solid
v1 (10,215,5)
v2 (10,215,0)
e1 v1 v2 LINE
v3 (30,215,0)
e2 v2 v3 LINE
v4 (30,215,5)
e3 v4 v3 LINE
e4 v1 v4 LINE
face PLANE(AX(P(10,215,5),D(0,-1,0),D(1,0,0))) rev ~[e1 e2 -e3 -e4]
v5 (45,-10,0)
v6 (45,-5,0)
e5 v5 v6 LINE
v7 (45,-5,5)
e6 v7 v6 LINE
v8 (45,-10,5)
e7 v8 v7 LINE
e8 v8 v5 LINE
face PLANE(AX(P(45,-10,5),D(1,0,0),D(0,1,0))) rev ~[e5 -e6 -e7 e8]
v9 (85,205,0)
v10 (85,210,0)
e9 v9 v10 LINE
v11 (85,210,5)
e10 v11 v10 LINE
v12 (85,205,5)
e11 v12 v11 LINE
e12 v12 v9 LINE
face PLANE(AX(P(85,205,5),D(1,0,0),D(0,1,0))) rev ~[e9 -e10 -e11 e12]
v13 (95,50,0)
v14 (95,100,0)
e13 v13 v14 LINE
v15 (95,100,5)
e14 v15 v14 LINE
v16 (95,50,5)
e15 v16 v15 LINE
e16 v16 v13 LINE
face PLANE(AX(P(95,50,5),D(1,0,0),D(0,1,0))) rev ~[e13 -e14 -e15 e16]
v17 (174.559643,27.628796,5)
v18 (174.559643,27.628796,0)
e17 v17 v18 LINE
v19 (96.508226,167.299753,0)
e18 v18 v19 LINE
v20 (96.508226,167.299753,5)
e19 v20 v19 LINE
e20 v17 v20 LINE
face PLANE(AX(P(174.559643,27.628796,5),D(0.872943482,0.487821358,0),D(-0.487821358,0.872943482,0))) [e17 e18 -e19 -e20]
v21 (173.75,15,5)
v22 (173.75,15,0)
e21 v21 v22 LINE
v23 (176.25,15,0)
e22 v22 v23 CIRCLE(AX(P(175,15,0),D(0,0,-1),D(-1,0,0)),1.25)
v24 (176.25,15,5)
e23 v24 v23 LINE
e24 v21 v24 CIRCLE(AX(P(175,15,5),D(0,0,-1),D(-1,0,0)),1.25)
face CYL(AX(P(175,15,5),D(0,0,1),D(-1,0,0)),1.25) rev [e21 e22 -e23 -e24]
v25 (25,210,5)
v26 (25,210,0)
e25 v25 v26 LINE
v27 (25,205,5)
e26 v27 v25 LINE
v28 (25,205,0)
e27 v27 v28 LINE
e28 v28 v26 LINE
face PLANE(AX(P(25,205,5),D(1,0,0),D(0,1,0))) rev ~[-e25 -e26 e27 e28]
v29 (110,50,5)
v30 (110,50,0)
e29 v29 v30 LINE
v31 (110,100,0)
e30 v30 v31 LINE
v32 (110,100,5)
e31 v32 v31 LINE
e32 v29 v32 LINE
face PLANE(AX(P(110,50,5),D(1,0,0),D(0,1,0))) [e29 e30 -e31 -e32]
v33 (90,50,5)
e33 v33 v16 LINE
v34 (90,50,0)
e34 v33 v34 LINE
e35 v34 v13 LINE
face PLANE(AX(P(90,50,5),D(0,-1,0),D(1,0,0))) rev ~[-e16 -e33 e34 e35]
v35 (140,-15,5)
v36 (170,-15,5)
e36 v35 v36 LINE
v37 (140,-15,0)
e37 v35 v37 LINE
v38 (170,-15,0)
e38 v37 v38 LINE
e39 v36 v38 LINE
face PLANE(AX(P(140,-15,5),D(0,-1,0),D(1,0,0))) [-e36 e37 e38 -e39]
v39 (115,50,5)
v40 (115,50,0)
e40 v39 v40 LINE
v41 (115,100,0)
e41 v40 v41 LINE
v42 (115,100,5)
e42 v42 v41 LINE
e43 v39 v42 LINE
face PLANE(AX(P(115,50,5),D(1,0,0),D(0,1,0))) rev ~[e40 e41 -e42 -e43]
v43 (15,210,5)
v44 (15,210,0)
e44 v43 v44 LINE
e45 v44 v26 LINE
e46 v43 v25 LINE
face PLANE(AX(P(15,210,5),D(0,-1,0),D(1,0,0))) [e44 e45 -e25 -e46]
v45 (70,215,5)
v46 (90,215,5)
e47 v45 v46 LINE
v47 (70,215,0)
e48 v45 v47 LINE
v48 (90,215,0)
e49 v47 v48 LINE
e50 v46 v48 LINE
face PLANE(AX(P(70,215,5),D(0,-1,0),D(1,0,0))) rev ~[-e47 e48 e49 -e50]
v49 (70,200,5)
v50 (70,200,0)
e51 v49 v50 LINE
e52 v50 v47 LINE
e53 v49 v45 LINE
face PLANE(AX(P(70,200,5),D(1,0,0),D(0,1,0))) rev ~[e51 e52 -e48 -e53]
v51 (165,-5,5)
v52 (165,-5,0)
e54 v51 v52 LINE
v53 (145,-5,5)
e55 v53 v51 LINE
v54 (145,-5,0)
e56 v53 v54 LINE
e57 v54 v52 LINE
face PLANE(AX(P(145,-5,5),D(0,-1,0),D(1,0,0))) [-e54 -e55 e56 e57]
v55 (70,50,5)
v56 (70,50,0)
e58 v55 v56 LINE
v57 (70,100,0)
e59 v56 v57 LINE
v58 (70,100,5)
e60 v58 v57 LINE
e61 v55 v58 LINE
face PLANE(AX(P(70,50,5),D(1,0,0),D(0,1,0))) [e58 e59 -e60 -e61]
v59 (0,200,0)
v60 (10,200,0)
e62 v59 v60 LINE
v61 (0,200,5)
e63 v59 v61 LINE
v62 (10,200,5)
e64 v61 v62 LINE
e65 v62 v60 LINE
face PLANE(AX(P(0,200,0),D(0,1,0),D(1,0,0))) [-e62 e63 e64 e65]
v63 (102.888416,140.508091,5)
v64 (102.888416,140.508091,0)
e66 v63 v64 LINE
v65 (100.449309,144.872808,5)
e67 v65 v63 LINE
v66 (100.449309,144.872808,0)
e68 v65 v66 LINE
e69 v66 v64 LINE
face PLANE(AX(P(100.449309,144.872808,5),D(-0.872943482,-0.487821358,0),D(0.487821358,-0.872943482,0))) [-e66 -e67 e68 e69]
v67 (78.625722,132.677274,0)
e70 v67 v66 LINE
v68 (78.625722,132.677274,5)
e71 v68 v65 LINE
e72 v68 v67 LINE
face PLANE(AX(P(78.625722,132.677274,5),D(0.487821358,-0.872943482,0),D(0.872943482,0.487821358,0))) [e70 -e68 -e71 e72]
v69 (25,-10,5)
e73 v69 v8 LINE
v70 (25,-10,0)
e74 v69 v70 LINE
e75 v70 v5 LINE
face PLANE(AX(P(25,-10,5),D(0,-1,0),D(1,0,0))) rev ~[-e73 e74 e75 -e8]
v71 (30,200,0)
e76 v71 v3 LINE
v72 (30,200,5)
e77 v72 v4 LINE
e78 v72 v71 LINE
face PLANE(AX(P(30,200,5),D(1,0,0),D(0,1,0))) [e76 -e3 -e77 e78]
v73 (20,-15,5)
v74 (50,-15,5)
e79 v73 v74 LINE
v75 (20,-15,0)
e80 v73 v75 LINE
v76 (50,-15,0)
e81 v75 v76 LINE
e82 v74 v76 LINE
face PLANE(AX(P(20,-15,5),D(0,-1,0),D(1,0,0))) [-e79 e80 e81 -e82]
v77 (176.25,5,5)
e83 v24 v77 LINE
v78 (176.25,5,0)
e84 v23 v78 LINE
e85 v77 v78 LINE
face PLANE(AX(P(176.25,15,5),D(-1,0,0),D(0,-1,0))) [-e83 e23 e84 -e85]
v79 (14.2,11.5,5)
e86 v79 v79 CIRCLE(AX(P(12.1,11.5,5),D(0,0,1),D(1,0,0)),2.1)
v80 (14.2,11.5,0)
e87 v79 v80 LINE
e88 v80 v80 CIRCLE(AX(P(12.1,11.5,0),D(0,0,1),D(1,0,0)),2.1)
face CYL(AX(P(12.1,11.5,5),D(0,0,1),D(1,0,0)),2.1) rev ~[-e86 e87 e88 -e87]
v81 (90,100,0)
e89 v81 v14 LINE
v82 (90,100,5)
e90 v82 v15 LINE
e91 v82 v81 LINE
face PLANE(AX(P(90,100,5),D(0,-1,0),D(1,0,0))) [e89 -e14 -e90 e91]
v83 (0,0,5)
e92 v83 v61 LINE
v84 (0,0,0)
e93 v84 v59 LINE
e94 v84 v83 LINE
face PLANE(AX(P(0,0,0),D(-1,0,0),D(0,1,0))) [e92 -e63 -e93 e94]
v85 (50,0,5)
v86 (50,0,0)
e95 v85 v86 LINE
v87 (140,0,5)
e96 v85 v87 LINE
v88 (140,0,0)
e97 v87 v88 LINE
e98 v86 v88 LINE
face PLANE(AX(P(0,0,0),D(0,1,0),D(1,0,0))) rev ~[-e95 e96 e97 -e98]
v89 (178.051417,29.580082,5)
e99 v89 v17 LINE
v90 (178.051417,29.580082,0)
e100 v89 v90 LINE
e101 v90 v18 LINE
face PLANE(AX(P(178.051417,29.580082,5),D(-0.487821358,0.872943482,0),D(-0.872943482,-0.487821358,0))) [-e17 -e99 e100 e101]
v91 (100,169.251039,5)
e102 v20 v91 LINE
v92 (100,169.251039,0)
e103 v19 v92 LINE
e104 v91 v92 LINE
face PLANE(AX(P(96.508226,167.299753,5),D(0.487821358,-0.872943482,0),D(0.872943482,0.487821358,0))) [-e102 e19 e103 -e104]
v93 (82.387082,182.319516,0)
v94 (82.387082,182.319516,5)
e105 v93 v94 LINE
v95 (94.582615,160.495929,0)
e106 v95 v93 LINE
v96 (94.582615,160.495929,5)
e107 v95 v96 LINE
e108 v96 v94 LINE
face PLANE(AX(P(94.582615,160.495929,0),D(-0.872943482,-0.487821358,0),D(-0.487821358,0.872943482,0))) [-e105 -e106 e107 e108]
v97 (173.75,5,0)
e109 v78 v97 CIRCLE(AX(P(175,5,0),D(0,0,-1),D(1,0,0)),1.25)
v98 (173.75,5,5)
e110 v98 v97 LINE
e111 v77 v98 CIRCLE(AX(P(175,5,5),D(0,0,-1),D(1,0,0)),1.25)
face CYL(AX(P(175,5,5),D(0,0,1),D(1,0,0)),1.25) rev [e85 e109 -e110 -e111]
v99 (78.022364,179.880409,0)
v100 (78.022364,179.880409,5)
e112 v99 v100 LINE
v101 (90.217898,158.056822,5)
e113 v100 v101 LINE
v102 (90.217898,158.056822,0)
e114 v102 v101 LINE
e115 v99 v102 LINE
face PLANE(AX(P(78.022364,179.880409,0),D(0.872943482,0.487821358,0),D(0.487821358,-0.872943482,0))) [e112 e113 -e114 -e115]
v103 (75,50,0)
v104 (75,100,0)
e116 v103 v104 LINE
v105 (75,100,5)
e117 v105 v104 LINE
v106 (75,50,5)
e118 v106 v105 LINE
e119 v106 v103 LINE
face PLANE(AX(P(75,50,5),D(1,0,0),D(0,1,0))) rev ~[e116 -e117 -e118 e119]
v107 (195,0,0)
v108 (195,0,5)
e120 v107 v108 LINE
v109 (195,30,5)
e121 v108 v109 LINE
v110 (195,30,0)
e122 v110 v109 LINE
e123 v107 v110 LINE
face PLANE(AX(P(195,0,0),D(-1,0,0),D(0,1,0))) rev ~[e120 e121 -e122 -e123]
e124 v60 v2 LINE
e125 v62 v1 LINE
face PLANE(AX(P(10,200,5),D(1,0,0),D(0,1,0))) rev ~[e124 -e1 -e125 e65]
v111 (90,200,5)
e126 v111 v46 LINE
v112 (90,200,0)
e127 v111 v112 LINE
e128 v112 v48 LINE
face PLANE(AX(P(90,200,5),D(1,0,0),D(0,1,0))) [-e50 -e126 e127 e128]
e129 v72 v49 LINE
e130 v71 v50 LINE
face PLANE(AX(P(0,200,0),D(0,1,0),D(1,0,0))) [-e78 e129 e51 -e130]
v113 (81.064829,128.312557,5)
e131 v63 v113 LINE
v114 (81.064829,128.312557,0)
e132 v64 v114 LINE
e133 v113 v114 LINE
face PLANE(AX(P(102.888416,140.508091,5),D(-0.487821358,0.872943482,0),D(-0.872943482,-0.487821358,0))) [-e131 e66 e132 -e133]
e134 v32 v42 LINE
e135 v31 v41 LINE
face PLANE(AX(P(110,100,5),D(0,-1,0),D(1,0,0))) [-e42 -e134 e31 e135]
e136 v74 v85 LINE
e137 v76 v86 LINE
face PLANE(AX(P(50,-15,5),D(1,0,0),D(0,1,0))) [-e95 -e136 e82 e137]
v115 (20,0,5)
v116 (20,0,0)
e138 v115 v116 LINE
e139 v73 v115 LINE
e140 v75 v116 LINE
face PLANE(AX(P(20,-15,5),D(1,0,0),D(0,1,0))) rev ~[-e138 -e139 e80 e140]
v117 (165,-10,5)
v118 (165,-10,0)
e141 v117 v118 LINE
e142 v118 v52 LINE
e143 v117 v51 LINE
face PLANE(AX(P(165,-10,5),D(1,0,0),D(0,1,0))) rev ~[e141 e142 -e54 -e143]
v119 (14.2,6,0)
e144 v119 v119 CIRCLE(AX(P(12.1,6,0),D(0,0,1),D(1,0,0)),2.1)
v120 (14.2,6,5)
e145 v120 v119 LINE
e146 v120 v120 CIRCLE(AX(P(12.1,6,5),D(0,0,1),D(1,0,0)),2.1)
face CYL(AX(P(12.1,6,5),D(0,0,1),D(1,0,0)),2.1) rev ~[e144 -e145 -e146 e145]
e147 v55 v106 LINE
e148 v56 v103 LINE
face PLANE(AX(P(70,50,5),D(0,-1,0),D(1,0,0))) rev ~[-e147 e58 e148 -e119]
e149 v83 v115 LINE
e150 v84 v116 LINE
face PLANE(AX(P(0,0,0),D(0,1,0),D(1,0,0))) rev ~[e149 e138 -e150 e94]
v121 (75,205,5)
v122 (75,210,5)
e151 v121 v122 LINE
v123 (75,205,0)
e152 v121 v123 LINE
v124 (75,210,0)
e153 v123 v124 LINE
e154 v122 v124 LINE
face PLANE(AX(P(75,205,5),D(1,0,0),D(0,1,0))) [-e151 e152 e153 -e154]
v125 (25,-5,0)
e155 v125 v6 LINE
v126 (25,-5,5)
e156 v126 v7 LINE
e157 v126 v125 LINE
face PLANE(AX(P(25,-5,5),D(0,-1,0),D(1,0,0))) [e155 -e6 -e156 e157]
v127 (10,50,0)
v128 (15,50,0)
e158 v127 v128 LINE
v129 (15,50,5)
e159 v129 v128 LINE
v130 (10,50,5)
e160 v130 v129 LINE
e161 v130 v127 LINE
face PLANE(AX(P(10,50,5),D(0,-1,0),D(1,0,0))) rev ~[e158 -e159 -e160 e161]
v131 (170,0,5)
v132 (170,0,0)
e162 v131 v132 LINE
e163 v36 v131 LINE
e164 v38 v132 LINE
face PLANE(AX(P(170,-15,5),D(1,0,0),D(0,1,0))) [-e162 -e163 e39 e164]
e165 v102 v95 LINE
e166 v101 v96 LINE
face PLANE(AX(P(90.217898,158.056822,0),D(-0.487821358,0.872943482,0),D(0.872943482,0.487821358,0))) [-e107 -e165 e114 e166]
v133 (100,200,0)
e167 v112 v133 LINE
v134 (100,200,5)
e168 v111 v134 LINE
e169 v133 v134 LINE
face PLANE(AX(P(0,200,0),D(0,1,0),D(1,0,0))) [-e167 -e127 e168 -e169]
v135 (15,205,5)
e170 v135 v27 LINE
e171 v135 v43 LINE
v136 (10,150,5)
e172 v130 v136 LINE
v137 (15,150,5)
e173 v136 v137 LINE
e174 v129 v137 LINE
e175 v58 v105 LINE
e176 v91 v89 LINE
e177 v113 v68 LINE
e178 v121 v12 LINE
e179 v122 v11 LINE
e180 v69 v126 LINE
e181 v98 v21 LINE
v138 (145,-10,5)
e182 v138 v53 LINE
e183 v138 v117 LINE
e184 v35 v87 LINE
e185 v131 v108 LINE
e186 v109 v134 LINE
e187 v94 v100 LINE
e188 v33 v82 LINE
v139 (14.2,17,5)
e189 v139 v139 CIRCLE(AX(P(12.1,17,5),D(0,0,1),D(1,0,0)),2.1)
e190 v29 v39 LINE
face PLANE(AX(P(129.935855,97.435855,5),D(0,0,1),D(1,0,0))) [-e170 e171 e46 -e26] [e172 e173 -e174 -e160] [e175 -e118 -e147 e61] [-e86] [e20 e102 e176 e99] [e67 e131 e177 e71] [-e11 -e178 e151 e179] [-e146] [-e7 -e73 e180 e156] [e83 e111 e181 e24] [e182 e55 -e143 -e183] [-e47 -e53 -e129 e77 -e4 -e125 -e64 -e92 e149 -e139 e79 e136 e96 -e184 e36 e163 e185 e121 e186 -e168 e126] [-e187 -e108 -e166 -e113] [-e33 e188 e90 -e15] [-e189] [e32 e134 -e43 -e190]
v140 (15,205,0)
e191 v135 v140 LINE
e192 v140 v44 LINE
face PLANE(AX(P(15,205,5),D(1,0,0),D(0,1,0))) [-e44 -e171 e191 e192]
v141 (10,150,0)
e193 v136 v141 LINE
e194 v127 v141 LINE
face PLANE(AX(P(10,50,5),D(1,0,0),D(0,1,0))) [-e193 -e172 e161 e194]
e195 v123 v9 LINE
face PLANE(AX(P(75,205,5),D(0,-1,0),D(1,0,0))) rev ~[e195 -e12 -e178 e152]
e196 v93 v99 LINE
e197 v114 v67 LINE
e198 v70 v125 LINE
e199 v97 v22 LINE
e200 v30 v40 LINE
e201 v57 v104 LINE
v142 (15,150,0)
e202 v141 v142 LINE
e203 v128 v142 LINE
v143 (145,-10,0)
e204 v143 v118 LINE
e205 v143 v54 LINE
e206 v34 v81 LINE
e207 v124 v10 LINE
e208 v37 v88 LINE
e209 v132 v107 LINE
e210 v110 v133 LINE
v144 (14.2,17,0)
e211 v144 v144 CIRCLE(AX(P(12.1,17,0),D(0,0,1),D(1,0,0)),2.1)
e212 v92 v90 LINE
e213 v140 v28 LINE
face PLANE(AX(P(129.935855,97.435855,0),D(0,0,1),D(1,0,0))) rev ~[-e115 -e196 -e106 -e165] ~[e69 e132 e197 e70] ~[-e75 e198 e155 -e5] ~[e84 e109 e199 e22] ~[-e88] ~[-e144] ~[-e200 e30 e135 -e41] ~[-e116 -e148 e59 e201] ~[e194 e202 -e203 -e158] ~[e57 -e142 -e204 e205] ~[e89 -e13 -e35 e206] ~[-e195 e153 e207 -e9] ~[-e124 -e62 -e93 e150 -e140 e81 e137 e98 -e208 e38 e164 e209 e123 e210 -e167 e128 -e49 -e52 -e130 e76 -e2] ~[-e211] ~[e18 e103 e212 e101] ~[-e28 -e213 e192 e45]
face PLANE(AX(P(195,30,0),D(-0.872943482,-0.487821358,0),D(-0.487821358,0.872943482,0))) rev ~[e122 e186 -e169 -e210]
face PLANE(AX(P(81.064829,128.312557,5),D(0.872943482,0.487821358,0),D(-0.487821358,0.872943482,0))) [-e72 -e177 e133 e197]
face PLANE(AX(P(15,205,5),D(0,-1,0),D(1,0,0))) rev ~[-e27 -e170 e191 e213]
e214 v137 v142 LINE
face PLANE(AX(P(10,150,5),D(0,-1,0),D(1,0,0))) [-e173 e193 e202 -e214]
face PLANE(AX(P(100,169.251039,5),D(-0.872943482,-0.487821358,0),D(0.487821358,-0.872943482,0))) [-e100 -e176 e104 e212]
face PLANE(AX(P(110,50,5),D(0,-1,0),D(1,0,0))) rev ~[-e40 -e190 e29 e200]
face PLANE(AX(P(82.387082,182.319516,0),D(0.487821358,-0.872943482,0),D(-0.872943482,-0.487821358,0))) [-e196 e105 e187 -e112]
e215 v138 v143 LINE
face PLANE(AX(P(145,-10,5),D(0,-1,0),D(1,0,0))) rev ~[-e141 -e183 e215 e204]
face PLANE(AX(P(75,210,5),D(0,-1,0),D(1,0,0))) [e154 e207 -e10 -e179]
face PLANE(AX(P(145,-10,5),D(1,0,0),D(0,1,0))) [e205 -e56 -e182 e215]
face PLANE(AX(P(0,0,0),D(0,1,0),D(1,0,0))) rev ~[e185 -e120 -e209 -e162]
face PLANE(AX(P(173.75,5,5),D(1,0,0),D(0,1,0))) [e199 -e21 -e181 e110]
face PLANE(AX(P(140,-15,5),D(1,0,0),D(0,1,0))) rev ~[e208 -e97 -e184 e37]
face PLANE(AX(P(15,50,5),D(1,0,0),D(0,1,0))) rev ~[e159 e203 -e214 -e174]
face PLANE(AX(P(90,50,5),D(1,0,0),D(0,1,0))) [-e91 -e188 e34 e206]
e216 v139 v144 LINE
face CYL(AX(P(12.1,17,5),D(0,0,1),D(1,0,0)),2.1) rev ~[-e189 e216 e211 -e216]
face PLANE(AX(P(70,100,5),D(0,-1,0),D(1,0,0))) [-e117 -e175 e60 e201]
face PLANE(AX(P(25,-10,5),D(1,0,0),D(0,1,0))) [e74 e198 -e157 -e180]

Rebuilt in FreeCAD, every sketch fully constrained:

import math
import FreeCAD as App
import Part
import Sketcher

V = App.Vector
Q = App.Units.Quantity

doc = App.newDocument("Part")
params = doc.addObject("Spreadsheet::Sheet", "Params")
for row, (alias, value) in enumerate([
    ("sketch1_width", "100 mm"),
    ("sketch1_width2", "195 mm"),
    ("sketch1_height", "200 mm"),
    ("sketch1_height2", "30 mm"),
    ("pad1_length", "5 mm"),
    ("sketch2_diameter", "4.2 mm"),
    ("pocket1_length", "5 mm"),
    ("sketch3_width", "20 mm"),
    ("sketch3_width2", "10 mm"),
    ("sketch3_height", "15 mm"),
    ("sketch3_height2", "5 mm"),
    ("pad2_length", "5 mm"),
    ("sketch4_diameter", "4.2 mm"),
    ("pocket2_length", "5 mm"),
    ("sketch5_width", "30 mm"),
    ("sketch5_width2", "20 mm"),
    ("sketch5_height", "15 mm"),
    ("sketch5_height2", "5 mm"),
    ("pad3_length", "5 mm"),
    ("sketch6_length", "160 mm"),
    ("sketch6_length2", "4 mm"),
    ("pocket3_length", "5 mm"),
    ("sketch7_width", "5 mm"),
    ("sketch7_height", "50 mm"),
    ("pocket4_length", "5 mm"),
    ("sketch8_height", "10 mm"),
    ("sketch8_radius", "1.25 mm"),
    ("pocket5_length", "5 mm"),
    ("sketch9_width", "5 mm"),
    ("sketch9_height", "100 mm"),
    ("sketch9_length", "25 mm"),
    ("sketch9_length2", "5 mm"),
    ("pocket6_length", "5 mm"),
    ("sketch10_length", "25 mm"),
    ("sketch10_length2", "5 mm"),
    ("pocket7_length", "5 mm"),
], start=1):
    params.set(f"A{row}", alias)
    params.set(f"B{row}", "=" + value)
    params.setAlias(f"B{row}", alias)

body = doc.addObject("PartDesign::Body", "Body")

# Sketch on XY plane
sketch1 = doc.addObject("Sketcher::SketchObject", "Sketch")
body.addObject(sketch1)
sketch1.AttachmentSupport = (doc.XY_Plane, [""])
sketch1.MapMode = "FlatFace"
sketch1.addGeometry(Part.LineSegment(V(195, 30, 0), V(100, 200, 0)), False)
sketch1.addGeometry(Part.LineSegment(V(100, 200, 0), V(0, 200, 0)), False)
sketch1.addGeometry(Part.LineSegment(V(0, 200, 0), V(0, 0, 0)), False)
sketch1.addGeometry(Part.LineSegment(V(0, 0, 0), V(195, 0, 0)), False)
sketch1.addGeometry(Part.LineSegment(V(195, 0, 0), V(195, 30, 0)), False)
sketch1.addConstraint(Sketcher.Constraint("Coincident", 0, 2, 1, 1))
sketch1.addConstraint(Sketcher.Constraint("Coincident", 1, 2, 2, 1))
sketch1.addConstraint(Sketcher.Constraint("Coincident", 2, 2, 3, 1))
sketch1.addConstraint(Sketcher.Constraint("Coincident", 3, 2, 4, 1))
sketch1.addConstraint(Sketcher.Constraint("Coincident", 4, 2, 0, 1))
sketch1.addConstraint(Sketcher.Constraint("Horizontal", 1))
sketch1.addConstraint(Sketcher.Constraint("Vertical", 2))
sketch1.addConstraint(Sketcher.Constraint("Horizontal", 3))
sketch1.addConstraint(Sketcher.Constraint("Vertical", 4))
sketch1.addConstraint(Sketcher.Constraint("Coincident", 2, 2, -1, 1))
sketch1.addConstraint(Sketcher.Constraint("DistanceX", 1, 2, 1, 1, Q("100 mm")))
sketch1.addConstraint(Sketcher.Constraint("DistanceX", 3, 1, 3, 2, Q("195 mm")))
sketch1.addConstraint(Sketcher.Constraint("DistanceY", 2, 2, 2, 1, Q("200 mm")))
sketch1.addConstraint(Sketcher.Constraint("DistanceY", 4, 1, 4, 2, Q("30 mm")))
sketch1.setExpression("Constraints[10]", "Params.sketch1_width")
sketch1.setExpression("Constraints[11]", "Params.sketch1_width2")
sketch1.setExpression("Constraints[12]", "Params.sketch1_height")
sketch1.setExpression("Constraints[13]", "Params.sketch1_height2")
pad1 = doc.addObject("PartDesign::Pad", "Pad")
body.addObject(pad1)
pad1.Profile = sketch1
pad1.setExpression("Length", "Params.pad1_length")

# Sketch on XY plane
sketch2 = doc.addObject("Sketcher::SketchObject", "Sketch001")
body.addObject(sketch2)
sketch2.AttachmentSupport = (doc.XY_Plane, [""])
sketch2.MapMode = "FlatFace"
sketch2.AttachmentOffset = App.Placement(V(0, 0, 5), App.Rotation())
sketch2.addGeometry(Part.Circle(V(12.1, 6, 0), V(0, 0, 1), 2.1), False)
sketch2.addConstraint(Sketcher.Constraint("Diameter", 0, Q("4.2 mm")))
sketch2.addConstraint(Sketcher.Constraint("DistanceY", -1, 1, 0, 3, Q("6 mm")))
sketch2.addConstraint(Sketcher.Constraint("DistanceX", -1, 1, 0, 3, Q("12.1 mm")))
sketch2.setExpression("Constraints[0]", "Params.sketch2_diameter")
pocket1 = doc.addObject("PartDesign::Pocket", "Pocket")
body.addObject(pocket1)
pocket1.Profile = sketch2
pocket1.setExpression("Length", "Params.pocket1_length")

# Sketch on XY plane
sketch3 = doc.addObject("Sketcher::SketchObject", "Sketch002")
body.addObject(sketch3)
sketch3.AttachmentSupport = (doc.XY_Plane, [""])
sketch3.MapMode = "FlatFace"
sketch3.AttachmentOffset = App.Placement(V(0, 0, 5), App.Rotation())
sketch3.addGeometry(Part.LineSegment(V(10, 215, 0), V(10, 200, 0)), False)
sketch3.addGeometry(Part.LineSegment(V(10, 200, 0), V(30, 200, 0)), False)
sketch3.addGeometry(Part.LineSegment(V(30, 200, 0), V(30, 215, 0)), False)
sketch3.addGeometry(Part.LineSegment(V(30, 215, 0), V(10, 215, 0)), False)
sketch3.addGeometry(Part.LineSegment(V(25, 205, 0), V(15, 205, 0)), False)
sketch3.addGeometry(Part.LineSegment(V(15, 205, 0), V(15, 210, 0)), False)
sketch3.addGeometry(Part.LineSegment(V(15, 210, 0), V(25, 210, 0)), False)
sketch3.addGeometry(Part.LineSegment(V(25, 210, 0), V(25, 205, 0)), False)
sketch3.addGeometry(Part.LineSegment(V(70, 215, 0), V(70, 200, 0)), False)
sketch3.addGeometry(Part.LineSegment(V(70, 200, 0), V(90, 200, 0)), False)
sketch3.addGeometry(Part.LineSegment(V(90, 200, 0), V(90, 215, 0)), False)
sketch3.addGeometry(Part.LineSegment(V(90, 215, 0), V(70, 215, 0)), False)
sketch3.addGeometry(Part.LineSegment(V(85, 205, 0), V(75, 205, 0)), False)
sketch3.addGeometry(Part.LineSegment(V(75, 205, 0), V(75, 210, 0)), False)
sketch3.addGeometry(Part.LineSegment(V(75, 210, 0), V(85, 210, 0)), False)
sketch3.addGeometry(Part.LineSegment(V(85, 210, 0), V(85, 205, 0)), False)
sketch3.addConstraint(Sketcher.Constraint("Coincident", 0, 2, 1, 1))
sketch3.addConstraint(Sketcher.Constraint("Coincident", 1, 2, 2, 1))
sketch3.addConstraint(Sketcher.Constraint("Coincident", 2, 2, 3, 1))
sketch3.addConstraint(Sketcher.Constraint("Coincident", 3, 2, 0, 1))
sketch3.addConstraint(Sketcher.Constraint("Coincident", 4, 2, 5, 1))
sketch3.addConstraint(Sketcher.Constraint("Coincident", 5, 2, 6, 1))
sketch3.addConstraint(Sketcher.Constraint("Coincident", 6, 2, 7, 1))
sketch3.addConstraint(Sketcher.Constraint("Coincident", 7, 2, 4, 1))
sketch3.addConstraint(Sketcher.Constraint("Coincident", 8, 2, 9, 1))
sketch3.addConstraint(Sketcher.Constraint("Coincident", 9, 2, 10, 1))
sketch3.addConstraint(Sketcher.Constraint("Coincident", 10, 2, 11, 1))
sketch3.addConstraint(Sketcher.Constraint("Coincident", 11, 2, 8, 1))
sketch3.addConstraint(Sketcher.Constraint("Coincident", 12, 2, 13, 1))
sketch3.addConstraint(Sketcher.Constraint("Coincident", 13, 2, 14, 1))
sketch3.addConstraint(Sketcher.Constraint("Coincident", 14, 2, 15, 1))
sketch3.addConstraint(Sketcher.Constraint("Coincident", 15, 2, 12, 1))
sketch3.addConstraint(Sketcher.Constraint("Vertical", 0))
sketch3.addConstraint(Sketcher.Constraint("Horizontal", 1))
sketch3.addConstraint(Sketcher.Constraint("Vertical", 2))
sketch3.addConstraint(Sketcher.Constraint("Horizontal", 3))
sketch3.addConstraint(Sketcher.Constraint("Horizontal", 4))
sketch3.addConstraint(Sketcher.Constraint("Vertical", 5))
sketch3.addConstraint(Sketcher.Constraint("Horizontal", 6))
sketch3.addConstraint(Sketcher.Constraint("Vertical", 7))
sketch3.addConstraint(Sketcher.Constraint("Vertical", 8))
sketch3.addConstraint(Sketcher.Constraint("Horizontal", 9))
sketch3.addConstraint(Sketcher.Constraint("Vertical", 10))
sketch3.addConstraint(Sketcher.Constraint("Horizontal", 11))
sketch3.addConstraint(Sketcher.Constraint("Horizontal", 12))
sketch3.addConstraint(Sketcher.Constraint("Vertical", 13))
sketch3.addConstraint(Sketcher.Constraint("Horizontal", 14))
sketch3.addConstraint(Sketcher.Constraint("Vertical", 15))
sketch3.addConstraint(Sketcher.Constraint("Horizontal", 1, 2, 8, 2))
sketch3.addConstraint(Sketcher.Constraint("Horizontal", 3, 2, 10, 2))
sketch3.addConstraint(Sketcher.Constraint("Horizontal", 7, 2, 12, 2))
sketch3.addConstraint(Sketcher.Constraint("Horizontal", 6, 2, 13, 2))
sketch3.addConstraint(Sketcher.Constraint("Equal", 3, 9))
sketch3.addConstraint(Sketcher.Constraint("Equal", 6, 12))
sketch3.addConstraint(Sketcher.Constraint("DistanceX", 1, 1, 1, 2, Q("20 mm")))
sketch3.addConstraint(Sketcher.Constraint("DistanceX", 4, 2, 4, 1, Q("10 mm")))
sketch3.addConstraint(Sketcher.Constraint("DistanceY", 0, 2, 0, 1, Q("15 mm")))
sketch3.addConstraint(Sketcher.Constraint("DistanceY", 5, 1, 5, 2, Q("5 mm")))
sketch3.addConstraint(Sketcher.Constraint("DistanceX", -1, 1, 0, 2, Q("10 mm")))
sketch3.addConstraint(Sketcher.Constraint("DistanceY", -1, 1, 0, 2, Q("200 mm")))
sketch3.addConstraint(Sketcher.Constraint("DistanceX", -1, 1, 4, 2, Q("15 mm")))
sketch3.addConstraint(Sketcher.Constraint("DistanceY", -1, 1, 4, 2, Q("205 mm")))
sketch3.addConstraint(Sketcher.Constraint("DistanceX", -1, 1, 8, 2, Q("70 mm")))
sketch3.addConstraint(Sketcher.Constraint("DistanceX", -1, 1, 12, 2, Q("75 mm")))
sketch3.setExpression("Constraints[38]", "Params.sketch3_width")
sketch3.setExpression("Constraints[39]", "Params.sketch3_width2")
sketch3.setExpression("Constraints[40]", "Params.sketch3_height")
sketch3.setExpression("Constraints[41]", "Params.sketch3_height2")
pad2 = doc.addObject("PartDesign::Pad", "Pad001")
body.addObject(pad2)
pad2.Profile = sketch3
pad2.setExpression("Length", "Params.pad2_length")
pad2.Reversed = True

# Sketch on XY plane
sketch4 = doc.addObject("Sketcher::SketchObject", "Sketch003")
body.addObject(sketch4)
sketch4.AttachmentSupport = (doc.XY_Plane, [""])
sketch4.MapMode = "FlatFace"
sketch4.AttachmentOffset = App.Placement(V(0, 0, 5), App.Rotation())
sketch4.addGeometry(Part.Circle(V(12.1, 11.5, 0), V(0, 0, 1), 2.1), False)
sketch4.addGeometry(Part.Circle(V(12.1, 17, 0), V(0, 0, 1), 2.1), False)
sketch4.addConstraint(Sketcher.Constraint("Equal", 0, 1))
sketch4.addConstraint(Sketcher.Constraint("Vertical", 0, 3, 1, 3))
sketch4.addConstraint(Sketcher.Constraint("Diameter", 0, Q("4.2 mm")))
sketch4.addConstraint(Sketcher.Constraint("DistanceY", -1, 1, 1, 3, Q("17 mm")))
sketch4.addConstraint(Sketcher.Constraint("DistanceX", -1, 1, 0, 3, Q("12.1 mm")))
sketch4.addConstraint(Sketcher.Constraint("DistanceY", -1, 1, 0, 3, Q("11.5 mm")))
sketch4.setExpression("Constraints[2]", "Params.sketch4_diameter")
pocket2 = doc.addObject("PartDesign::Pocket", "Pocket001")
body.addObject(pocket2)
pocket2.Profile = sketch4
pocket2.setExpression("Length", "Params.pocket2_length")

# Sketch on XY plane
sketch5 = doc.addObject("Sketcher::SketchObject", "Sketch004")
body.addObject(sketch5)
sketch5.AttachmentSupport = (doc.XY_Plane, [""])
sketch5.MapMode = "FlatFace"
sketch5.AttachmentOffset = App.Placement(V(0, 0, 5), App.Rotation())
sketch5.addGeometry(Part.LineSegment(V(20, 0, 0), V(20, -15, 0)), False)
sketch5.addGeometry(Part.LineSegment(V(20, -15, 0), V(50, -15, 0)), False)
sketch5.addGeometry(Part.LineSegment(V(50, -15, 0), V(50, 0, 0)), False)
sketch5.addGeometry(Part.LineSegment(V(50, 0, 0), V(20, 0, 0)), False)
sketch5.addGeometry(Part.LineSegment(V(45, -10, 0), V(25, -10, 0)), False)
sketch5.addGeometry(Part.LineSegment(V(25, -10, 0), V(25, -5, 0)), False)
sketch5.addGeometry(Part.LineSegment(V(25, -5, 0), V(45, -5, 0)), False)
sketch5.addGeometry(Part.LineSegment(V(45, -5, 0), V(45, -10, 0)), False)
sketch5.addGeometry(Part.LineSegment(V(140, 0, 0), V(140, -15, 0)), False)
sketch5.addGeometry(Part.LineSegment(V(140, -15, 0), V(170, -15, 0)), False)
sketch5.addGeometry(Part.LineSegment(V(170, -15, 0), V(170, 0, 0)), False)
sketch5.addGeometry(Part.LineSegment(V(170, 0, 0), V(140, 0, 0)), False)
sketch5.addGeometry(Part.LineSegment(V(165, -10, 0), V(145, -10, 0)), False)
sketch5.addGeometry(Part.LineSegment(V(145, -10, 0), V(145, -5, 0)), False)
sketch5.addGeometry(Part.LineSegment(V(145, -5, 0), V(165, -5, 0)), False)
sketch5.addGeometry(Part.LineSegment(V(165, -5, 0), V(165, -10, 0)), False)
sketch5.addConstraint(Sketcher.Constraint("Coincident", 0, 2, 1, 1))
sketch5.addConstraint(Sketcher.Constraint("Coincident", 1, 2, 2, 1))
sketch5.addConstraint(Sketcher.Constraint("Coincident", 2, 2, 3, 1))
sketch5.addConstraint(Sketcher.Constraint("Coincident", 3, 2, 0, 1))
sketch5.addConstraint(Sketcher.Constraint("Coincident", 4, 2, 5, 1))
sketch5.addConstraint(Sketcher.Constraint("Coincident", 5, 2, 6, 1))
sketch5.addConstraint(Sketcher.Constraint("Coincident", 6, 2, 7, 1))
sketch5.addConstraint(Sketcher.Constraint("Coincident", 7, 2, 4, 1))
sketch5.addConstraint(Sketcher.Constraint("Coincident", 8, 2, 9, 1))
sketch5.addConstraint(Sketcher.Constraint("Coincident", 9, 2, 10, 1))
sketch5.addConstraint(Sketcher.Constraint("Coincident", 10, 2, 11, 1))
sketch5.addConstraint(Sketcher.Constraint("Coincident", 11, 2, 8, 1))
sketch5.addConstraint(Sketcher.Constraint("Coincident", 12, 2, 13, 1))
sketch5.addConstraint(Sketcher.Constraint("Coincident", 13, 2, 14, 1))
sketch5.addConstraint(Sketcher.Constraint("Coincident", 14, 2, 15, 1))
sketch5.addConstraint(Sketcher.Constraint("Coincident", 15, 2, 12, 1))
sketch5.addConstraint(Sketcher.Constraint("Vertical", 0))
sketch5.addConstraint(Sketcher.Constraint("Horizontal", 1))
sketch5.addConstraint(Sketcher.Constraint("Vertical", 2))
sketch5.addConstraint(Sketcher.Constraint("Horizontal", 3))
sketch5.addConstraint(Sketcher.Constraint("Horizontal", 4))
sketch5.addConstraint(Sketcher.Constraint("Vertical", 5))
sketch5.addConstraint(Sketcher.Constraint("Horizontal", 6))
sketch5.addConstraint(Sketcher.Constraint("Vertical", 7))
sketch5.addConstraint(Sketcher.Constraint("Vertical", 8))
sketch5.addConstraint(Sketcher.Constraint("Horizontal", 9))
sketch5.addConstraint(Sketcher.Constraint("Vertical", 10))
sketch5.addConstraint(Sketcher.Constraint("Horizontal", 11))
sketch5.addConstraint(Sketcher.Constraint("Horizontal", 12))
sketch5.addConstraint(Sketcher.Constraint("Vertical", 13))
sketch5.addConstraint(Sketcher.Constraint("Horizontal", 14))
sketch5.addConstraint(Sketcher.Constraint("Vertical", 15))
sketch5.addConstraint(Sketcher.Constraint("PointOnObject", 2, 2, -1))
sketch5.addConstraint(Sketcher.Constraint("PointOnObject", 10, 2, -1))
sketch5.addConstraint(Sketcher.Constraint("Horizontal", 1, 2, 8, 2))
sketch5.addConstraint(Sketcher.Constraint("Horizontal", 7, 2, 12, 2))
sketch5.addConstraint(Sketcher.Constraint("Horizontal", 6, 2, 13, 2))
sketch5.addConstraint(Sketcher.Constraint("Equal", 3, 9))
sketch5.addConstraint(Sketcher.Constraint("Equal", 6, 12))
sketch5.addConstraint(Sketcher.Constraint("DistanceX", 1, 1, 1, 2, Q("30 mm")))
sketch5.addConstraint(Sketcher.Constraint("DistanceX", 4, 2, 4, 1, Q("20 mm")))
sketch5.addConstraint(Sketcher.Constraint("DistanceY", 0, 2, 0, 1, Q("15 mm")))
sketch5.addConstraint(Sketcher.Constraint("DistanceY", 5, 1, 5, 2, Q("5 mm")))
sketch5.addConstraint(Sketcher.Constraint("DistanceX", -1, 1, 0, 2, Q("20 mm")))
sketch5.addConstraint(Sketcher.Constraint("DistanceX", -1, 1, 4, 2, Q("25 mm")))
sketch5.addConstraint(Sketcher.Constraint("DistanceY", 4, 2, -1, 1, Q("10 mm")))
sketch5.addConstraint(Sketcher.Constraint("DistanceX", -1, 1, 8, 2, Q("140 mm")))
sketch5.addConstraint(Sketcher.Constraint("DistanceX", -1, 1, 12, 2, Q("145 mm")))
sketch5.setExpression("Constraints[39]", "Params.sketch5_width")
sketch5.setExpression("Constraints[40]", "Params.sketch5_width2")
sketch5.setExpression("Constraints[41]", "Params.sketch5_height")
sketch5.setExpression("Constraints[42]", "Params.sketch5_height2")
pad3 = doc.addObject("PartDesign::Pad", "Pad002")
body.addObject(pad3)
pad3.Profile = sketch5
pad3.setExpression("Length", "Params.pad3_length")
pad3.Reversed = True

# Sketch on XY plane
sketch6 = doc.addObject("Sketcher::SketchObject", "Sketch005")
body.addObject(sketch6)
sketch6.AttachmentSupport = (doc.XY_Plane, [""])
sketch6.MapMode = "FlatFace"
sketch6.AttachmentOffset = App.Placement(V(0, 0, 5), App.Rotation())
sketch6.addGeometry(Part.LineSegment(V(178.051417, 29.580082, 0), V(100, 169.251039, 0)), False)
sketch6.addGeometry(Part.LineSegment(V(100, 169.251039, 0), V(96.508226, 167.299753, 0)), False)
sketch6.addGeometry(Part.LineSegment(V(96.508226, 167.299753, 0), V(174.559643, 27.628796, 0)), False)
sketch6.addGeometry(Part.LineSegment(V(174.559643, 27.628796, 0), V(178.051417, 29.580082, 0)), False)
sketch6.addConstraint(Sketcher.Constraint("Coincident", 0, 2, 1, 1))
sketch6.addConstraint(Sketcher.Constraint("Coincident", 1, 2, 2, 1))
sketch6.addConstraint(Sketcher.Constraint("Coincident", 2, 2, 3, 1))
sketch6.addConstraint(Sketcher.Constraint("Coincident", 3, 2, 0, 1))
sketch6.addConstraint(Sketcher.Constraint("Perpendicular", 0, 1))
sketch6.addConstraint(Sketcher.Constraint("Perpendicular", 1, 2))
sketch6.addConstraint(Sketcher.Constraint("Perpendicular", 2, 3))
sketch6.addConstraint(Sketcher.Constraint("Distance", 0, Q("160 mm")))
sketch6.addConstraint(Sketcher.Constraint("Distance", 1, Q("4 mm")))
sketch6.addConstraint(Sketcher.Constraint("DistanceX", -1, 1, 0, 2, Q("100 mm")))
sketch6.addConstraint(Sketcher.Constraint("DistanceY", -1, 1, 0, 2, Q("169.251039 mm")))
sketch6.addConstraint(Sketcher.Constraint("DistanceY", -1, 1, 3, 2, Q("29.580082 mm")))
sketch6.setExpression("Constraints[7]", "Params.sketch6_length")
sketch6.setExpression("Constraints[8]", "Params.sketch6_length2")
pocket3 = doc.addObject("PartDesign::Pocket", "Pocket002")
body.addObject(pocket3)
pocket3.Profile = sketch6
pocket3.setExpression("Length", "Params.pocket3_length")

# Sketch on XY plane
sketch7 = doc.addObject("Sketcher::SketchObject", "Sketch006")
body.addObject(sketch7)
sketch7.AttachmentSupport = (doc.XY_Plane, [""])
sketch7.MapMode = "FlatFace"
sketch7.AttachmentOffset = App.Placement(V(0, 0, 5), App.Rotation())
sketch7.addGeometry(Part.LineSegment(V(70, 100, 0), V(70, 50, 0)), False)
sketch7.addGeometry(Part.LineSegment(V(70, 50, 0), V(75, 50, 0)), False)
sketch7.addGeometry(Part.LineSegment(V(75, 50, 0), V(75, 100, 0)), False)
sketch7.addGeometry(Part.LineSegment(V(75, 100, 0), V(70, 100, 0)), False)
sketch7.addGeometry(Part.LineSegment(V(90, 100, 0), V(90, 50, 0)), False)
sketch7.addGeometry(Part.LineSegment(V(90, 50, 0), V(95, 50, 0)), False)
sketch7.addGeometry(Part.LineSegment(V(95, 50, 0), V(95, 100, 0)), False)
sketch7.addGeometry(Part.LineSegment(V(95, 100, 0), V(90, 100, 0)), False)
sketch7.addGeometry(Part.LineSegment(V(110, 100, 0), V(110, 50, 0)), False)
sketch7.addGeometry(Part.LineSegment(V(110, 50, 0), V(115, 50, 0)), False)
sketch7.addGeometry(Part.LineSegment(V(115, 50, 0), V(115, 100, 0)), False)
sketch7.addGeometry(Part.LineSegment(V(115, 100, 0), V(110, 100, 0)), False)
sketch7.addConstraint(Sketcher.Constraint("Coincident", 0, 2, 1, 1))
sketch7.addConstraint(Sketcher.Constraint("Coincident", 1, 2, 2, 1))
sketch7.addConstraint(Sketcher.Constraint("Coincident", 2, 2, 3, 1))
sketch7.addConstraint(Sketcher.Constraint("Coincident", 3, 2, 0, 1))
sketch7.addConstraint(Sketcher.Constraint("Coincident", 4, 2, 5, 1))
sketch7.addConstraint(Sketcher.Constraint("Coincident", 5, 2, 6, 1))
sketch7.addConstraint(Sketcher.Constraint("Coincident", 6, 2, 7, 1))
sketch7.addConstraint(Sketcher.Constraint("Coincident", 7, 2, 4, 1))
sketch7.addConstraint(Sketcher.Constraint("Coincident", 8, 2, 9, 1))
sketch7.addConstraint(Sketcher.Constraint("Coincident", 9, 2, 10, 1))
sketch7.addConstraint(Sketcher.Constraint("Coincident", 10, 2, 11, 1))
sketch7.addConstraint(Sketcher.Constraint("Coincident", 11, 2, 8, 1))
sketch7.addConstraint(Sketcher.Constraint("Vertical", 0))
sketch7.addConstraint(Sketcher.Constraint("Horizontal", 1))
sketch7.addConstraint(Sketcher.Constraint("Vertical", 2))
sketch7.addConstraint(Sketcher.Constraint("Horizontal", 3))
sketch7.addConstraint(Sketcher.Constraint("Vertical", 4))
sketch7.addConstraint(Sketcher.Constraint("Horizontal", 5))
sketch7.addConstraint(Sketcher.Constraint("Vertical", 6))
sketch7.addConstraint(Sketcher.Constraint("Horizontal", 7))
sketch7.addConstraint(Sketcher.Constraint("Vertical", 8))
sketch7.addConstraint(Sketcher.Constraint("Horizontal", 9))
sketch7.addConstraint(Sketcher.Constraint("Vertical", 10))
sketch7.addConstraint(Sketcher.Constraint("Horizontal", 11))
sketch7.addConstraint(Sketcher.Constraint("Horizontal", 1, 2, 4, 2))
sketch7.addConstraint(Sketcher.Constraint("Horizontal", 3, 2, 6, 2))
sketch7.addConstraint(Sketcher.Constraint("Horizontal", 5, 2, 8, 2))
sketch7.addConstraint(Sketcher.Constraint("Horizontal", 7, 2, 10, 2))
sketch7.addConstraint(Sketcher.Constraint("Equal", 3, 5))
sketch7.addConstraint(Sketcher.Constraint("Equal", 7, 9))
sketch7.addConstraint(Sketcher.Constraint("DistanceX", 1, 1, 1, 2, Q("5 mm")))
sketch7.addConstraint(Sketcher.Constraint("DistanceY", 0, 2, 0, 1, Q("50 mm")))
sketch7.addConstraint(Sketcher.Constraint("DistanceX", -1, 1, 0, 2, Q("70 mm")))
sketch7.addConstraint(Sketcher.Constraint("DistanceY", -1, 1, 0, 2, Q("50 mm")))
sketch7.addConstraint(Sketcher.Constraint("DistanceX", -1, 1, 4, 2, Q("90 mm")))
sketch7.addConstraint(Sketcher.Constraint("DistanceX", -1, 1, 8, 2, Q("110 mm")))
sketch7.setExpression("Constraints[30]", "Params.sketch7_width")
sketch7.setExpression("Constraints[31]", "Params.sketch7_height")
pocket4 = doc.addObject("PartDesign::Pocket", "Pocket003")
body.addObject(pocket4)
pocket4.Profile = sketch7
pocket4.setExpression("Length", "Params.pocket4_length")

# Sketch on XY plane
sketch8 = doc.addObject("Sketcher::SketchObject", "Sketch007")
body.addObject(sketch8)
sketch8.AttachmentSupport = (doc.XY_Plane, [""])
sketch8.MapMode = "FlatFace"
sketch8.AttachmentOffset = App.Placement(V(0, 0, 5), App.Rotation())
sketch8.addGeometry(Part.LineSegment(V(176.25, 5, 0), V(176.25, 15, 0)), False)
sketch8.addGeometry(Part.ArcOfCircle(Part.Circle(V(175, 15, 0), V(0, 0, 1), 1.25), math.radians(0), math.radians(180)), False)
sketch8.addGeometry(Part.LineSegment(V(173.75, 15, 0), V(173.75, 5, 0)), False)
sketch8.addGeometry(Part.ArcOfCircle(Part.Circle(V(175, 5, 0), V(0, 0, 1), 1.25), math.radians(180), math.radians(360)), False)
sketch8.addConstraint(Sketcher.Constraint("Tangent", 0, 2, 1, 1))
sketch8.addConstraint(Sketcher.Constraint("Tangent", 1, 2, 2, 1))
sketch8.addConstraint(Sketcher.Constraint("Tangent", 2, 2, 3, 1))
sketch8.addConstraint(Sketcher.Constraint("Tangent", 3, 2, 0, 1))
sketch8.addConstraint(Sketcher.Constraint("Vertical", 0))
sketch8.addConstraint(Sketcher.Constraint("Vertical", 2))
sketch8.addConstraint(Sketcher.Constraint("DistanceY", 0, 1, 0, 2, Q("10 mm")))
sketch8.addConstraint(Sketcher.Constraint("Radius", 1, Q("1.25 mm")))
sketch8.addConstraint(Sketcher.Constraint("DistanceX", -1, 1, 1, 3, Q("175 mm")))
sketch8.addConstraint(Sketcher.Constraint("DistanceY", -1, 1, 1, 3, Q("15 mm")))
sketch8.setExpression("Constraints[6]", "Params.sketch8_height")
sketch8.setExpression("Constraints[7]", "Params.sketch8_radius")
pocket5 = doc.addObject("PartDesign::Pocket", "Pocket004")
body.addObject(pocket5)
pocket5.Profile = sketch8
pocket5.setExpression("Length", "Params.pocket5_length")

# Sketch on XY plane
sketch9 = doc.addObject("Sketcher::SketchObject", "Sketch008")
body.addObject(sketch9)
sketch9.AttachmentSupport = (doc.XY_Plane, [""])
sketch9.MapMode = "FlatFace"
sketch9.AttachmentOffset = App.Placement(V(0, 0, 5), App.Rotation())
sketch9.addGeometry(Part.LineSegment(V(100.449309, 144.872808, 0), V(78.625722, 132.677274, 0)), False)
sketch9.addGeometry(Part.LineSegment(V(78.625722, 132.677274, 0), V(81.064829, 128.312557, 0)), False)
sketch9.addGeometry(Part.LineSegment(V(81.064829, 128.312557, 0), V(102.888416, 140.508091, 0)), False)
sketch9.addGeometry(Part.LineSegment(V(102.888416, 140.508091, 0), V(100.449309, 144.872808, 0)), False)
sketch9.addGeometry(Part.LineSegment(V(10, 150, 0), V(10, 50, 0)), False)
sketch9.addGeometry(Part.LineSegment(V(10, 50, 0), V(15, 50, 0)), False)
sketch9.addGeometry(Part.LineSegment(V(15, 50, 0), V(15, 150, 0)), False)
sketch9.addGeometry(Part.LineSegment(V(15, 150, 0), V(10, 150, 0)), False)
sketch9.addConstraint(Sketcher.Constraint("Coincident", 0, 2, 1, 1))
sketch9.addConstraint(Sketcher.Constraint("Coincident", 1, 2, 2, 1))
sketch9.addConstraint(Sketcher.Constraint("Coincident", 2, 2, 3, 1))
sketch9.addConstraint(Sketcher.Constraint("Coincident", 3, 2, 0, 1))
sketch9.addConstraint(Sketcher.Constraint("Coincident", 4, 2, 5, 1))
sketch9.addConstraint(Sketcher.Constraint("Coincident", 5, 2, 6, 1))
sketch9.addConstraint(Sketcher.Constraint("Coincident", 6, 2, 7, 1))
sketch9.addConstraint(Sketcher.Constraint("Coincident", 7, 2, 4, 1))
sketch9.addConstraint(Sketcher.Constraint("Vertical", 4))
sketch9.addConstraint(Sketcher.Constraint("Horizontal", 5))
sketch9.addConstraint(Sketcher.Constraint("Vertical", 6))
sketch9.addConstraint(Sketcher.Constraint("Horizontal", 7))
sketch9.addConstraint(Sketcher.Constraint("Perpendicular", 0, 1))
sketch9.addConstraint(Sketcher.Constraint("Perpendicular", 1, 2))
sketch9.addConstraint(Sketcher.Constraint("Perpendicular", 2, 3))
sketch9.addConstraint(Sketcher.Constraint("DistanceX", 5, 1, 5, 2, Q("5 mm")))
sketch9.addConstraint(Sketcher.Constraint("DistanceY", 4, 2, 4, 1, Q("100 mm")))
sketch9.addConstraint(Sketcher.Constraint("Distance", 0, Q("25 mm")))
sketch9.addConstraint(Sketcher.Constraint("Distance", 1, Q("5 mm")))
sketch9.addConstraint(Sketcher.Constraint("DistanceX", -1, 1, 4, 2, Q("10 mm")))
sketch9.addConstraint(Sketcher.Constraint("DistanceY", -1, 1, 4, 2, Q("50 mm")))
sketch9.addConstraint(Sketcher.Constraint("DistanceX", -1, 1, 1, 2, Q("81.064829 mm")))
sketch9.addConstraint(Sketcher.Constraint("DistanceY", -1, 1, 2, 2, Q("140.508091 mm")))
sketch9.addConstraint(Sketcher.Constraint("DistanceX", -1, 1, 3, 2, Q("100.449309 mm")))
sketch9.setExpression("Constraints[15]", "Params.sketch9_width")
sketch9.setExpression("Constraints[16]", "Params.sketch9_height")
sketch9.setExpression("Constraints[17]", "Params.sketch9_length")
sketch9.setExpression("Constraints[18]", "Params.sketch9_length2")
pocket6 = doc.addObject("PartDesign::Pocket", "Pocket005")
body.addObject(pocket6)
pocket6.Profile = sketch9
pocket6.setExpression("Length", "Params.pocket6_length")

# Sketch on XY plane
sketch10 = doc.addObject("Sketcher::SketchObject", "Sketch009")
body.addObject(sketch10)
sketch10.AttachmentSupport = (doc.XY_Plane, [""])
sketch10.MapMode = "FlatFace"
sketch10.addGeometry(Part.LineSegment(V(82.387082, 182.319516, 0), V(94.582615, 160.495929, 0)), False)
sketch10.addGeometry(Part.LineSegment(V(94.582615, 160.495929, 0), V(90.217898, 158.056822, 0)), False)
sketch10.addGeometry(Part.LineSegment(V(90.217898, 158.056822, 0), V(78.022364, 179.880409, 0)), False)
sketch10.addGeometry(Part.LineSegment(V(78.022364, 179.880409, 0), V(82.387082, 182.319516, 0)), False)
sketch10.addConstraint(Sketcher.Constraint("Coincident", 0, 2, 1, 1))
sketch10.addConstraint(Sketcher.Constraint("Coincident", 1, 2, 2, 1))
sketch10.addConstraint(Sketcher.Constraint("Coincident", 2, 2, 3, 1))
sketch10.addConstraint(Sketcher.Constraint("Coincident", 3, 2, 0, 1))
sketch10.addConstraint(Sketcher.Constraint("Perpendicular", 0, 1))
sketch10.addConstraint(Sketcher.Constraint("Perpendicular", 1, 2))
sketch10.addConstraint(Sketcher.Constraint("Perpendicular", 2, 3))
sketch10.addConstraint(Sketcher.Constraint("Distance", 0, Q("25 mm")))
sketch10.addConstraint(Sketcher.Constraint("Distance", 1, Q("5 mm")))
sketch10.addConstraint(Sketcher.Constraint("DistanceX", -1, 1, 1, 2, Q("90.217898 mm")))
sketch10.addConstraint(Sketcher.Constraint("DistanceY", -1, 1, 0, 2, Q("160.495929 mm")))
sketch10.addConstraint(Sketcher.Constraint("DistanceY", -1, 1, 2, 2, Q("179.880409 mm")))
sketch10.setExpression("Constraints[7]", "Params.sketch10_length")
sketch10.setExpression("Constraints[8]", "Params.sketch10_length2")
pocket7 = doc.addObject("PartDesign::Pocket", "Pocket006")
body.addObject(pocket7)
pocket7.Profile = sketch10
pocket7.setExpression("Length", "Params.pocket7_length")
pocket7.Reversed = True

doc.recompute()
